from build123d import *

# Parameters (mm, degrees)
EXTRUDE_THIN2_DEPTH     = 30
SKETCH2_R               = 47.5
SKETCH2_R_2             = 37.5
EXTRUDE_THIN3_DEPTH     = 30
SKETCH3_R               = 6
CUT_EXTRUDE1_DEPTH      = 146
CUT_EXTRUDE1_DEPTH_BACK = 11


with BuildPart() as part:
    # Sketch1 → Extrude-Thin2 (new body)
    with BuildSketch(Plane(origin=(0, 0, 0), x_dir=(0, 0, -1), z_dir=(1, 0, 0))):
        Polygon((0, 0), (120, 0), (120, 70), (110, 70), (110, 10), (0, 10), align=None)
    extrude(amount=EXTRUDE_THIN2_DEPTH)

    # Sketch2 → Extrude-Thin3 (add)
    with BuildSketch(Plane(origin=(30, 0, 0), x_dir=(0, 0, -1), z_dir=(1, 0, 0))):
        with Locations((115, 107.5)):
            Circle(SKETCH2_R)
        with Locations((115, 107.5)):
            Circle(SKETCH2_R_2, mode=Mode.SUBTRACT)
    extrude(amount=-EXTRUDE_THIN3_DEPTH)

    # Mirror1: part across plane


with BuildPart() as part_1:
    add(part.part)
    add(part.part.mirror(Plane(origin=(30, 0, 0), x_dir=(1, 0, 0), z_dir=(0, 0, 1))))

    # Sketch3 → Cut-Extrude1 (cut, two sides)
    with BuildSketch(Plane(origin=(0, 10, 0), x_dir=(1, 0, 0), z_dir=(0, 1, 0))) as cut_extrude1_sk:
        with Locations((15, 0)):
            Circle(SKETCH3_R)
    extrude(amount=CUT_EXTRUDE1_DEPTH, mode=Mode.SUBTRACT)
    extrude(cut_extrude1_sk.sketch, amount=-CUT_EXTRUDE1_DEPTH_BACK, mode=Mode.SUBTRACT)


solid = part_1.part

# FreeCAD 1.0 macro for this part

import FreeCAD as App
import Part
import Sketcher


def add_polygon(sketch, points):
    """Adds a closed chain of lines whose ends are joined by coincident constraints."""
    first, n = sketch.GeometryCount, len(points)
    for a, b in zip(points, points[1:] + points[:1]):
        sketch.addGeometry(Part.LineSegment(App.Vector(*a, 0), App.Vector(*b, 0)), False)
    for i in range(n):
        sketch.addConstraint(Sketcher.Constraint("Coincident", first + i, 2, first + (i + 1) % n, 1))

doc = App.newDocument("Part")
body = doc.addObject("PartDesign::Body", "Body")

# Sketch on YZ plane
sketch1 = body.newObject("Sketcher::SketchObject", "Sketch")
sketch1.AttachmentSupport = (doc.getObject("YZ_Plane"), [""])
sketch1.MapMode = "FlatFace"
add_polygon(sketch1, [(0, 0), (0, -120), (70, -120), (70, -110), (10, -110), (10, 0)])  # lines 0-5
sketch1.addConstraint(Sketcher.Constraint("Vertical", 0))
sketch1.addConstraint(Sketcher.Constraint("Horizontal", 1))
sketch1.addConstraint(Sketcher.Constraint("Vertical", 2))
sketch1.addConstraint(Sketcher.Constraint("Horizontal", 3))
sketch1.addConstraint(Sketcher.Constraint("Vertical", 4))
sketch1.addConstraint(Sketcher.Constraint("Horizontal", 5))
sketch1.addConstraint(Sketcher.Constraint("Coincident", 5, 2, -1, 1))
sketch1.addConstraint(Sketcher.Constraint("Equal", 5, 2))
sketch1.addConstraint(Sketcher.Constraint("DistanceX", 1, 1, 1, 2, 70.0))
sketch1.addConstraint(Sketcher.Constraint("DistanceX", 3, 2, 3, 1, 60.0))
sketch1.addConstraint(Sketcher.Constraint("DistanceY", 0, 2, 0, 1, 120.0))
pad1 = body.newObject("PartDesign::Pad", "Pad")
pad1.Profile = sketch1
pad1.Length = 30

# Sketch on YZ plane
sketch2 = body.newObject("Sketcher::SketchObject", "Sketch001")
sketch2.AttachmentSupport = (doc.getObject("YZ_Plane"), [""])
sketch2.MapMode = "FlatFace"
sketch2.AttachmentOffset = App.Placement(App.Vector(0, 0, 30), App.Rotation())
sketch2.addGeometry(Part.Circle(App.Vector(107.5, -115, 0), App.Vector(0, 0, 1), 47.5), False)
sketch2.addGeometry(Part.Circle(App.Vector(107.5, -115, 0), App.Vector(0, 0, 1), 37.5), False)
sketch2.addConstraint(Sketcher.Constraint("Coincident", 1, 3, 0, 3))
sketch2.addConstraint(Sketcher.Constraint("Diameter", 0, 95.0))
sketch2.addConstraint(Sketcher.Constraint("Diameter", 1, 75.0))
sketch2.addConstraint(Sketcher.Constraint("DistanceY", 0, 3, -1, 1, 115.0))
sketch2.addConstraint(Sketcher.Constraint("DistanceX", -1, 1, 0, 3, 107.5))
pad2 = body.newObject("PartDesign::Pad", "Pad001")
pad2.Profile = sketch2
pad2.Length = 30
pad2.Reversed = True
body2 = doc.addObject("PartDesign::Body", "Body001")
doc.recompute()

body2.BaseFeature = body
doc.recompute()

mirroring = doc.addObject("Part::Mirroring", "Mirroring")
mirroring.Source = body
mirroring.Base = App.Vector(30, 0, 0)
mirroring.Normal = App.Vector(0, 0, 1)
body3 = doc.addObject("PartDesign::Body", "Body002")
body3.BaseFeature = mirroring
boolean = body2.newObject("PartDesign::Boolean", "Boolean")
boolean.Type = "Fuse"
boolean.addObjects([body3])
doc.recompute()

# Sketch on XZ plane
sketch3 = body2.newObject("Sketcher::SketchObject", "Sketch002")
sketch3.AttachmentSupport = (doc.getObject("XZ_Plane001"), [""])
sketch3.MapMode = "FlatFace"
sketch3.AttachmentOffset = App.Placement(App.Vector(0, 0, -10), App.Rotation())
sketch3.addGeometry(Part.Circle(App.Vector(15, 0, 0), App.Vector(0, 0, 1), 6), False)
sketch3.addConstraint(Sketcher.Constraint("PointOnObject", 0, 3, -1))
sketch3.addConstraint(Sketcher.Constraint("Diameter", 0, 12.0))
sketch3.addConstraint(Sketcher.Constraint("DistanceX", -1, 1, 0, 3, 15.0))
pocket1 = body2.newObject("PartDesign::Pocket", "Pocket")
pocket1.Profile = sketch3
pocket1.Type = "ThroughAll"
pocket1.Midplane = True
mirroring.Visibility = False

doc.recompute()
